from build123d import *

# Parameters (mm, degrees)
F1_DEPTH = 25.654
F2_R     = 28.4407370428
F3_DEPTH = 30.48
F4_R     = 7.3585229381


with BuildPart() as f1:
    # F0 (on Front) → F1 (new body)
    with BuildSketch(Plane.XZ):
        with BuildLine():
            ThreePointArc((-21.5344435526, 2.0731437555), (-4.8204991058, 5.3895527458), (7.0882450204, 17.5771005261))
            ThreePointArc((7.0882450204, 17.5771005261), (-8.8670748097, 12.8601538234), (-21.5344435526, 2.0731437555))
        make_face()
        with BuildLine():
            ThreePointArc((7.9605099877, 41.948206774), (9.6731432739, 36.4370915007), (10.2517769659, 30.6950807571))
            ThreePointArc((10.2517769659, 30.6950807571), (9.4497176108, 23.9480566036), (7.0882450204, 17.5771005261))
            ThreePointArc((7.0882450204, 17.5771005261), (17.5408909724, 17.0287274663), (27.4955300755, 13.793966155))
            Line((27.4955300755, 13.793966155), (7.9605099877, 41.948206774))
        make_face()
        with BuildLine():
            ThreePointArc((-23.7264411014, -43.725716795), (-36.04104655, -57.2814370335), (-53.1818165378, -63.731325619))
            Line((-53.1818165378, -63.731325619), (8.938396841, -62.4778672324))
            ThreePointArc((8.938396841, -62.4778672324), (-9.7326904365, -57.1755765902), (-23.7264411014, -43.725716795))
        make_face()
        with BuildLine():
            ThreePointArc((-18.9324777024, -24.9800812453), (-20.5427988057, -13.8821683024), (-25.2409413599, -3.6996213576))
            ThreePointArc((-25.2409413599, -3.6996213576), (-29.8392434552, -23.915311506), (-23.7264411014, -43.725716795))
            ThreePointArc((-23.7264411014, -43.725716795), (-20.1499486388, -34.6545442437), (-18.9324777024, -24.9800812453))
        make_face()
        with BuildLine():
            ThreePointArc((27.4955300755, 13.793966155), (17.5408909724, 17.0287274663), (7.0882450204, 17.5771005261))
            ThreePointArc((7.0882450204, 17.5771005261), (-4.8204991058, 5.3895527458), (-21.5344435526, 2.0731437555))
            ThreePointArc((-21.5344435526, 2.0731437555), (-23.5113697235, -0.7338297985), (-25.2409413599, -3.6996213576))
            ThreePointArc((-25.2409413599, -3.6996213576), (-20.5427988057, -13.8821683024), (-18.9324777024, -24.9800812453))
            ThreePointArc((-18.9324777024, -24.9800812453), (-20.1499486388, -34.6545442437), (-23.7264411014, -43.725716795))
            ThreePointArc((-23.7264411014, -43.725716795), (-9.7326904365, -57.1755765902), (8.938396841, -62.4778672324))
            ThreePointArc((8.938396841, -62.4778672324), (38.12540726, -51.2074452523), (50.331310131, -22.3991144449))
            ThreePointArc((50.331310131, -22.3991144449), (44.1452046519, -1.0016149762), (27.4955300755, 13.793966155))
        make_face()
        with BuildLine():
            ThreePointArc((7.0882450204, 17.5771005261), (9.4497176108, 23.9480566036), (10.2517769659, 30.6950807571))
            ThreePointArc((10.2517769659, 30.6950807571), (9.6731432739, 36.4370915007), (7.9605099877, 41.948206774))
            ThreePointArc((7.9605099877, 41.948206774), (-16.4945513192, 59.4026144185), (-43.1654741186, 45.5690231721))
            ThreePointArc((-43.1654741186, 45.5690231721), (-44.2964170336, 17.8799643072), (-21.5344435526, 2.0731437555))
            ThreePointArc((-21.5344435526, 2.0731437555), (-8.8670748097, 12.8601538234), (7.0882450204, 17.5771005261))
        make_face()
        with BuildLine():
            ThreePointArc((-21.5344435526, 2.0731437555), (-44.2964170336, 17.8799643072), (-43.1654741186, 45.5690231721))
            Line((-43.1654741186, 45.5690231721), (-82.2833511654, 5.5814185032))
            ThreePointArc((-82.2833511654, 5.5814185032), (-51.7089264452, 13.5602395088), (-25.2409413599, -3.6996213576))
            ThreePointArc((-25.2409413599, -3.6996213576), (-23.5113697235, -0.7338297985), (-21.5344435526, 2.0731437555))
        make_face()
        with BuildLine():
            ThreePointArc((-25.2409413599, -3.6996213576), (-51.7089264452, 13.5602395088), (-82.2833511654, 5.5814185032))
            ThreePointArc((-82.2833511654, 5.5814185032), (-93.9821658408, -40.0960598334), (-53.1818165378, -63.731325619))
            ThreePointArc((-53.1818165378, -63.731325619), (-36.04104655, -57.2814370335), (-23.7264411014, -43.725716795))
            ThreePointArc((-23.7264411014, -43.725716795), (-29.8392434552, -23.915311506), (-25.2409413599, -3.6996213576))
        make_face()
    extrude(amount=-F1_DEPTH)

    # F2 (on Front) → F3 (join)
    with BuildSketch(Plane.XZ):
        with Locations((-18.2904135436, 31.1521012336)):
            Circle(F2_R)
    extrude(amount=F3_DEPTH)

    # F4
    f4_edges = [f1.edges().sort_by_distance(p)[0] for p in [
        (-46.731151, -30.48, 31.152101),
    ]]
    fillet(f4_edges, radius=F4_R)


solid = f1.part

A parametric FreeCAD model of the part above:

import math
import FreeCAD as App
import Part
import Sketcher
from FreeCAD import Vector
Q = App.Units.Quantity


def edges_at(feature, points):
    """Names of the edges that pass closest to the given points."""
    edges = feature.Shape.Edges
    near = lambda p: min(range(len(edges)), key=lambda i: edges[i].distToShape(Part.Vertex(*p))[0])
    return sorted({f"Edge{near(p) + 1}" for p in points})

doc = App.newDocument("Part")
body = doc.addObject("PartDesign::Body", "Body")

# Sketch on XZ plane
sketch1 = doc.addObject("Sketcher::SketchObject", "Sketch")
body.addObject(sketch1)
sketch1.AttachmentSupport = (doc.XZ_Plane, [""])
sketch1.MapMode = "FlatFace"
sketch1.addGeometry([
    Part.LineSegment(Vector(-53, -64, 0), Vector(9, -62, 0)),  # 0
    Part.ArcOfCircle(Part.Circle(Vector(10, -22, 0), Vector(0, 0, 1), 40), math.radians(-92), math.radians(0)),  # 1
    Part.ArcOfCircle(Part.Circle(Vector(10, -22, 0), Vector(0, 0, 1), 40), math.radians(0), math.radians(64)),  # 2
    Part.LineSegment(Vector(27, 14, 0), Vector(8, 42, 0)),  # 3
    Part.ArcOfCircle(Part.Circle(Vector(-19, 31, 0), Vector(0, 0, 1), 29), math.radians(23), math.radians(149)),  # 4
    Part.LineSegment(Vector(-43, 46, 0), Vector(-82, 6, 0)),  # 5
    Part.ArcOfCircle(Part.Circle(Vector(-58, -25, 0), Vector(0, 0, 1), 39), math.radians(128), math.radians(277)),  # 6
], False)
sketch1.addConstraint([
    Sketcher.Constraint("Coincident", 0, 2, 1, 1),
    Sketcher.Constraint("Tangent", 1, 2, 2, 1),
    Sketcher.Constraint("Coincident", 2, 2, 3, 1),
    Sketcher.Constraint("Coincident", 3, 2, 4, 1),
    Sketcher.Constraint("Coincident", 4, 2, 5, 1),
    Sketcher.Constraint("Coincident", 5, 2, 6, 1),
    Sketcher.Constraint("Coincident", 6, 2, 0, 1),
    Sketcher.Constraint("Equal", 1, 2),
    Sketcher.Constraint("Horizontal", 2, 3, 1, 2),
    Sketcher.Constraint("Radius", 6, 39.047121),
    Sketcher.Constraint("Radius", 1, 40.099614),
    Sketcher.Constraint("Radius", 4, 28.779437),
    Sketcher.Constraint("DistanceX", 6, 3, -1, 1, 57.979599),
    Sketcher.Constraint("DistanceX", 0, 2, 1, 3, 1.293299),
    Sketcher.Constraint("DistanceX", 3, 2, 1, 2, 42.3708),
    Sketcher.Constraint("DistanceY", 6, 3, 5, 2, 30.5615),
    Sketcher.Constraint("Distance", 0, 62.132858),
    Sketcher.Constraint("DistanceX", 4, 3, -1, 1, 18.527661),
    Sketcher.Constraint("DistanceY", -1, 1, 4, 3, 30.695081),
    Sketcher.Constraint("DistanceY", 6, 3, -1, 1, 24.980081),
    Sketcher.Constraint("DistanceX", -1, 1, 1, 2, 50.33131),
    Sketcher.Constraint("DistanceX", -1, 1, 2, 2, 27.49553),
    Sketcher.Constraint("DistanceY", 2, 2, 3, 2, 28.154241),
    Sketcher.Constraint("DistanceX", 4, 2, 1, 3, 53.39717),
])
pad1 = doc.addObject("PartDesign::Pad", "Pad")
body.addObject(pad1)
pad1.Profile = sketch1
pad1.Length = Q("1.01 in")
pad1.Reversed = True

# Sketch on XZ plane
sketch2 = doc.addObject("Sketcher::SketchObject", "Sketch001")
body.addObject(sketch2)
sketch2.AttachmentSupport = (doc.XZ_Plane, [""])
sketch2.MapMode = "FlatFace"
sketch2.addGeometry(Part.Circle(Vector(-18, 31, 0), Vector(0, 0, 1), 28), False)
sketch2.addConstraint([
    Sketcher.Constraint("Diameter", 0, 56.881474),
    Sketcher.Constraint("DistanceY", -1, 1, 0, 3, 31.152101),
    Sketcher.Constraint("DistanceX", 0, 3, -1, 1, 18.290414),
])
pad2 = doc.addObject("PartDesign::Pad", "Pad001")
body.addObject(pad2)
pad2.Profile = sketch2
pad2.Length = Q("1.2 in")
doc.recompute()

fillet = doc.addObject("PartDesign::Fillet", "Fillet")
body.addObject(fillet)
fillet.Base = (pad2, edges_at(pad2, [(-46.731, -30.48, 31.152)]))
fillet.Radius = 7.358523

doc.recompute()
